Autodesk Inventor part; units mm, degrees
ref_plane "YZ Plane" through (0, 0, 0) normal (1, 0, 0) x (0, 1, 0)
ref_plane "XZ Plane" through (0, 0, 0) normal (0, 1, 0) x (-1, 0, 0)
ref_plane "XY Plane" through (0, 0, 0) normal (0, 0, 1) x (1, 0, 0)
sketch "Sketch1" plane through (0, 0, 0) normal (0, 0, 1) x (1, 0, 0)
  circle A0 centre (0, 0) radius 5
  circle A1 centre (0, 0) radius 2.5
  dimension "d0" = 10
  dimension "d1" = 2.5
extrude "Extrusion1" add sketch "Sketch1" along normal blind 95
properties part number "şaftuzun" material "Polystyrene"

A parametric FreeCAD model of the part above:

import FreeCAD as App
import Part
import Sketcher

V = App.Vector

doc = App.newDocument("Part")
body = doc.addObject("PartDesign::Body", "Body")

sketch1 = body.newObject("Sketcher::SketchObject", "Sketch")
sketch1.AttachmentSupport = (doc.getObject("XY_Plane"), [""])
sketch1.MapMode = "FlatFace"
sketch1.addGeometry([
    Part.Circle(V(0, 0, 0), V(0, 0, 1), 5),
    Part.Circle(V(0, 0, 0), V(0, 0, 1), 2.5),
], False)
sketch1.addConstraint([
    Sketcher.Constraint("Coincident", 0, 3, -1, 1),
    Sketcher.Constraint("Coincident", 1, 3, -1, 1),
    Sketcher.Constraint("Diameter", 0, 10.0),
    Sketcher.Constraint("Diameter", 1, 5.0),
])
pad1 = body.newObject("PartDesign::Pad", "Pad")
pad1.Profile = sketch1
pad1.Length = 95

doc.recompute()
